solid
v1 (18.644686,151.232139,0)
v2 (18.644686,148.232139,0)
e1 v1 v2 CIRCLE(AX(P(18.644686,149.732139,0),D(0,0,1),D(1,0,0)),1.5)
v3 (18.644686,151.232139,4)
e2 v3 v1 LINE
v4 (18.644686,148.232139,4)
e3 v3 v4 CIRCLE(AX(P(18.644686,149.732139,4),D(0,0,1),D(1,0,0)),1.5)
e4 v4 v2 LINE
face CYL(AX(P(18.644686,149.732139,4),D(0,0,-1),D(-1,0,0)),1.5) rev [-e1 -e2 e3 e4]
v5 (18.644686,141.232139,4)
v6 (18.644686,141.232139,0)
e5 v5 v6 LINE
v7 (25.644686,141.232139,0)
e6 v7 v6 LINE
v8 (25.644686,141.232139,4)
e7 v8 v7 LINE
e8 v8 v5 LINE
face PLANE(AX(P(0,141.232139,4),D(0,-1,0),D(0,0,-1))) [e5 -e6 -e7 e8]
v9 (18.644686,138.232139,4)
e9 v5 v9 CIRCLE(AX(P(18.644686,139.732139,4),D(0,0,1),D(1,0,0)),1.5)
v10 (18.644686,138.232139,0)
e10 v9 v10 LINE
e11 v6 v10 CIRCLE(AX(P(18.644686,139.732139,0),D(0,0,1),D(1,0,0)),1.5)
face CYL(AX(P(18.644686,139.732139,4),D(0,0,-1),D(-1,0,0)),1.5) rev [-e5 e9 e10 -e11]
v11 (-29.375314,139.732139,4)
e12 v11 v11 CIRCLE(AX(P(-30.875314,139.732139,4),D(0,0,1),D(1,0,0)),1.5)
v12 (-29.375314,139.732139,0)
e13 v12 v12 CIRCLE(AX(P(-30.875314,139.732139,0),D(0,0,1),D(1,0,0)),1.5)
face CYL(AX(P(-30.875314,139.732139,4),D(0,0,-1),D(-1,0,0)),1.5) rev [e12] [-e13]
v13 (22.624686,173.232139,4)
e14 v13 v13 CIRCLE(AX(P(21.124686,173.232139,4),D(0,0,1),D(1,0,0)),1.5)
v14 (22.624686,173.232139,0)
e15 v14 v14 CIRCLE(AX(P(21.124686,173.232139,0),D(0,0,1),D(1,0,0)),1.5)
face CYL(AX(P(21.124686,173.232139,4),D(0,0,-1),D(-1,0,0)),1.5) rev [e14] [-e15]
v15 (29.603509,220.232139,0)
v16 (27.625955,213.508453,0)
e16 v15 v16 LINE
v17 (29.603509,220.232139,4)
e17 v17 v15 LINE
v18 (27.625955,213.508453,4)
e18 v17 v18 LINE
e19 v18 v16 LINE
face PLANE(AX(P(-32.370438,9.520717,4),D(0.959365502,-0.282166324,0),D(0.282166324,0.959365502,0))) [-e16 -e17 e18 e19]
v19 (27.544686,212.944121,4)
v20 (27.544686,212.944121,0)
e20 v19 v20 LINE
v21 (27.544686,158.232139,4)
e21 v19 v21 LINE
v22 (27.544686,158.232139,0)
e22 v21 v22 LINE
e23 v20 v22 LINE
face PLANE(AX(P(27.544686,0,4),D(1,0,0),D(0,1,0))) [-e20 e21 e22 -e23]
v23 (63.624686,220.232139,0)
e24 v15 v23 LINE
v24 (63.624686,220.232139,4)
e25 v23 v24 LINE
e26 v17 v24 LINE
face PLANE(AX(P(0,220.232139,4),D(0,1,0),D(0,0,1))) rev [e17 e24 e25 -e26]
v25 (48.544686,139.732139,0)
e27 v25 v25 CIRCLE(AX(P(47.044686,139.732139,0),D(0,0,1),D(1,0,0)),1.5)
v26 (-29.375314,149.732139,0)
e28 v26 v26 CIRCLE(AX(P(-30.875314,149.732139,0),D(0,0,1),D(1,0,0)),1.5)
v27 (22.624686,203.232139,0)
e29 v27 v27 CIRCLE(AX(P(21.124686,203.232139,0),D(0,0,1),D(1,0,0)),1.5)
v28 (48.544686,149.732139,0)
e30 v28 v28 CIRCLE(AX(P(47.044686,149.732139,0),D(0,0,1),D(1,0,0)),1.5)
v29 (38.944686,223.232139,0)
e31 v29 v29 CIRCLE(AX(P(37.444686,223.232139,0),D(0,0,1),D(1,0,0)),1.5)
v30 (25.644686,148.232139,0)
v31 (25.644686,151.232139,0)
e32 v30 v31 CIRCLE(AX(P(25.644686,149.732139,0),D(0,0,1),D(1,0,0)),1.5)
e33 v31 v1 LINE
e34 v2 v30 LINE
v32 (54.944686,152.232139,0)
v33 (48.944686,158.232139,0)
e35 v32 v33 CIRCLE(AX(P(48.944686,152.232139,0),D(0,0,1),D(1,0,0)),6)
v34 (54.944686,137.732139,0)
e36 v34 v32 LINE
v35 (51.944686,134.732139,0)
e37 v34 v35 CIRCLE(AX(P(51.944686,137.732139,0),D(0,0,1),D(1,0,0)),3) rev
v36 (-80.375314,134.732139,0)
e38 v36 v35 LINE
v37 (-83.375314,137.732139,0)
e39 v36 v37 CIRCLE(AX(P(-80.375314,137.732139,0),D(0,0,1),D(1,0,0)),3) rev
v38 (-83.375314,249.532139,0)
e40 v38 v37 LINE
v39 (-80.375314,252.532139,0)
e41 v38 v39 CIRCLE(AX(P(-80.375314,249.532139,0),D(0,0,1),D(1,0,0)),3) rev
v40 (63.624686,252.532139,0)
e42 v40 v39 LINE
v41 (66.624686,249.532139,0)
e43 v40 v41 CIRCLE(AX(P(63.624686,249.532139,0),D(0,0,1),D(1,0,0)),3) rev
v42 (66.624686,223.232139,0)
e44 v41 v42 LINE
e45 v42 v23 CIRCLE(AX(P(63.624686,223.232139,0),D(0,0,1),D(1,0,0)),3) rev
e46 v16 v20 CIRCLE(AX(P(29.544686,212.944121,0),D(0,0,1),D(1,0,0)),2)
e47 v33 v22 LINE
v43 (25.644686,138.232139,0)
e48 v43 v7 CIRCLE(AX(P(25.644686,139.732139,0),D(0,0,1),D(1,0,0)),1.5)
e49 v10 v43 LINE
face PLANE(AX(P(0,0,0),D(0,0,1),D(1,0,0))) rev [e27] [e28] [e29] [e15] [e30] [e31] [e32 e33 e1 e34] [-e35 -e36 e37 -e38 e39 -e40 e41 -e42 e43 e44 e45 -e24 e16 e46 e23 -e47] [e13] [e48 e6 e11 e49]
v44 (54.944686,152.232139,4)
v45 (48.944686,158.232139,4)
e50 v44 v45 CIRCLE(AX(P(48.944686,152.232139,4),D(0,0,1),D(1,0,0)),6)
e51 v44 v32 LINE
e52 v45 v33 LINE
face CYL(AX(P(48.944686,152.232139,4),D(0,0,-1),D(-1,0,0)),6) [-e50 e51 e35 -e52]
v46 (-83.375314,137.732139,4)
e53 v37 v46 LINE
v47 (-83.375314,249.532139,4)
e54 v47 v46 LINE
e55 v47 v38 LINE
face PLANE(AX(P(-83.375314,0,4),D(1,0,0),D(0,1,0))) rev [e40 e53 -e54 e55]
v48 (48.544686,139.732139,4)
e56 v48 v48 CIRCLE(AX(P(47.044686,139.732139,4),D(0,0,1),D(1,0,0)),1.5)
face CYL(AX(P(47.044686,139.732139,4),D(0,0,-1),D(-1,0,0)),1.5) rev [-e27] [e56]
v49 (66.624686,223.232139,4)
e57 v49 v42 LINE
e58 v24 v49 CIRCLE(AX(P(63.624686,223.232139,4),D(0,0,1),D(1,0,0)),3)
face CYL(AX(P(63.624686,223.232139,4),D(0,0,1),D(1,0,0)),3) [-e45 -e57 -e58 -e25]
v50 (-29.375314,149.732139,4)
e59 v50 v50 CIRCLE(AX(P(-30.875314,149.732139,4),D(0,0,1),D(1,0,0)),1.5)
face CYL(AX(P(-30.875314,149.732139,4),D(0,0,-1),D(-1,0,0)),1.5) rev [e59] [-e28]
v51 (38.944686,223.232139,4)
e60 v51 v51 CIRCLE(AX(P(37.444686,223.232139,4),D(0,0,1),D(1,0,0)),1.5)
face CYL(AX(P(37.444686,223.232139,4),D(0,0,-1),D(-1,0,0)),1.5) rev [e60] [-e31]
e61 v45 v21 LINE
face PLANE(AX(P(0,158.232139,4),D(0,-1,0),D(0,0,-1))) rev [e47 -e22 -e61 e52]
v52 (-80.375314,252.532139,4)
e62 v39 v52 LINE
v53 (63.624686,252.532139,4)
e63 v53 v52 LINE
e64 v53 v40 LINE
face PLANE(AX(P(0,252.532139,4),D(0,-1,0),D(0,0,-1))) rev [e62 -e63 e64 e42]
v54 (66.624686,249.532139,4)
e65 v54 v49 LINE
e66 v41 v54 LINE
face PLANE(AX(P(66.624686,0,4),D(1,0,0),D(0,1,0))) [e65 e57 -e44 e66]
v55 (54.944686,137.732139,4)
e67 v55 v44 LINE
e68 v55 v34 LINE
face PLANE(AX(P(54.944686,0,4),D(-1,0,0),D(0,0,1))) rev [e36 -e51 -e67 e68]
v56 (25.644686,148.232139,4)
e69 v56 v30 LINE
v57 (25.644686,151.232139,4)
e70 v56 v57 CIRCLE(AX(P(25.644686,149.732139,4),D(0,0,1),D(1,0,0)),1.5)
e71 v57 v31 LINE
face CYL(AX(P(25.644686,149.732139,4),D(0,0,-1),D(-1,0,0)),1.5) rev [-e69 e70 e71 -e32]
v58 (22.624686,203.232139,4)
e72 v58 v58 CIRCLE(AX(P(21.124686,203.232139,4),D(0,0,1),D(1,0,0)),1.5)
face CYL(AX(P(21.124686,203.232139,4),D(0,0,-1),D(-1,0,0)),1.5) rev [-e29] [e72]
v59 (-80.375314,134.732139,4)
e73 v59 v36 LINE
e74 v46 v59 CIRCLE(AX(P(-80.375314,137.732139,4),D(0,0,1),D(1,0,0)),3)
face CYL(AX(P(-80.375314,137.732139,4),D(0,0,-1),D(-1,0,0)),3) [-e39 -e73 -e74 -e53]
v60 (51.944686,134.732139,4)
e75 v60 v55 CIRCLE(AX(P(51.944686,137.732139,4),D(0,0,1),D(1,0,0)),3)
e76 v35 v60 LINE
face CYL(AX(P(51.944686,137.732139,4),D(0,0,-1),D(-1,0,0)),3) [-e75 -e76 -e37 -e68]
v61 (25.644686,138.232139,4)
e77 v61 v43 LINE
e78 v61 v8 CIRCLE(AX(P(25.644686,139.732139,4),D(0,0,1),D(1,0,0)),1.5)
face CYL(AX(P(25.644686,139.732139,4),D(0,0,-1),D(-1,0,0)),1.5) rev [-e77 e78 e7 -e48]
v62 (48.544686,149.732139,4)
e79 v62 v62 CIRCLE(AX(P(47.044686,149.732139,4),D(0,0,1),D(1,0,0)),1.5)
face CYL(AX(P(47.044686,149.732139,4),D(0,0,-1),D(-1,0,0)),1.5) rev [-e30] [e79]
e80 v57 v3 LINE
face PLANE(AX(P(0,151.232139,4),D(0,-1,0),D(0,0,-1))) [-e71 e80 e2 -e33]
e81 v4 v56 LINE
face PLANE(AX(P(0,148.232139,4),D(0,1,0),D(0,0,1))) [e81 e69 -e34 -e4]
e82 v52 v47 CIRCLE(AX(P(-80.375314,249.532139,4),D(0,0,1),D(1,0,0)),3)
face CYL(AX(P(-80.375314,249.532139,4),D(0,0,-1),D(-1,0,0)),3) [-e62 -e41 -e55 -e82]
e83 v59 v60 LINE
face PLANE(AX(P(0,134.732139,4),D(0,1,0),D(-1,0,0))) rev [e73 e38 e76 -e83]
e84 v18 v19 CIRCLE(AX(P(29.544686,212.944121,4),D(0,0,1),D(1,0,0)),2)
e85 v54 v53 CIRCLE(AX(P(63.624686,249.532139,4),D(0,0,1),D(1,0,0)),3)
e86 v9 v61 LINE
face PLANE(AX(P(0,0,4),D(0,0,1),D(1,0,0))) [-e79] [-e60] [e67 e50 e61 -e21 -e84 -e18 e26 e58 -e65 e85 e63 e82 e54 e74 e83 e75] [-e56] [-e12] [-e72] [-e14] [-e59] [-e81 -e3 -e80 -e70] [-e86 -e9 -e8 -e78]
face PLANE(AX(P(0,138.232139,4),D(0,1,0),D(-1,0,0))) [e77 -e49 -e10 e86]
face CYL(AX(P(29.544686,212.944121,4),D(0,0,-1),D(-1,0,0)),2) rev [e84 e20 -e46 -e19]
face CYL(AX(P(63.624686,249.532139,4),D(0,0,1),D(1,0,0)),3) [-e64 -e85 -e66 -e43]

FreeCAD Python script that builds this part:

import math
import FreeCAD as App
import Part
import Sketcher

V = App.Vector


def edges_at(feature, points):
    """Names of the edges that pass closest to the given points."""
    edges = feature.Shape.Edges
    near = lambda p: min(range(len(edges)), key=lambda i: edges[i].distToShape(Part.Vertex(*p))[0])
    return sorted({f"Edge{near(p) + 1}" for p in points})

doc = App.newDocument("Part")
body = doc.addObject("PartDesign::Body", "Body")

# Sketch on XY plane
sketch1 = body.newObject("Sketcher::SketchObject", "Sketch")
sketch1.AttachmentSupport = (doc.getObject("XY_Plane"), [""])
sketch1.MapMode = "FlatFace"
sketch1.addGeometry([
    Part.LineSegment(V(66.6, 252.5, 0), V(-83.4, 252.5, 0)),  # 0
    Part.LineSegment(V(-83.4, 252.5, 0), V(-83.4, 134.7, 0)),  # 1
    Part.LineSegment(V(-83.4, 134.7, 0), V(54.9, 134.7, 0)),  # 2
    Part.LineSegment(V(54.9, 134.7, 0), V(54.9, 152.2, 0)),  # 3
    Part.ArcOfCircle(Part.Circle(V(48.9, 152.2, 0), V(0, 0, 1), 6), math.radians(0), math.radians(90)),  # 4
    Part.LineSegment(V(48.9, 158.2, 0), V(27.5, 158.2, 0)),  # 5
    Part.LineSegment(V(27.5, 158.2, 0), V(27.5, 212.9, 0)),  # 6
    Part.ArcOfCircle(Part.Circle(V(29.5, 212.9, 0), V(0, 0, 1), 2), math.radians(163.61), math.radians(180)),  # 7
    Part.LineSegment(V(27.6, 213.5, 0), V(29.6, 220.2, 0)),  # 8
    Part.LineSegment(V(29.6, 220.2, 0), V(66.6, 220.2, 0)),  # 9
    Part.LineSegment(V(66.6, 220.2, 0), V(66.6, 252.5, 0)),  # 10
    Part.Circle(V(-30.9, 139.7, 0), V(0, 0, 1), 1.5),  # 11
    Part.Circle(V(-30.9, 149.7, 0), V(0, 0, 1), 1.5),  # 12
    Part.ArcOfCircle(Part.Circle(V(25.6, 139.7, 0), V(0, 0, 1), 1.5), math.radians(-90), math.radians(90)),  # 13
    Part.LineSegment(V(25.6, 138.2, 0), V(18.6, 138.2, 0)),  # 14
    Part.ArcOfCircle(Part.Circle(V(18.6, 139.7, 0), V(0, 0, 1), 1.5), math.radians(90), math.radians(270)),  # 15
    Part.LineSegment(V(18.6, 141.2, 0), V(25.6, 141.2, 0)),  # 16
    Part.ArcOfCircle(Part.Circle(V(18.6, 149.7, 0), V(0, 0, 1), 1.5), math.radians(90), math.radians(270)),  # 17
    Part.LineSegment(V(18.6, 151.2, 0), V(25.6, 151.2, 0)),  # 18
    Part.ArcOfCircle(Part.Circle(V(25.6, 149.7, 0), V(0, 0, 1), 1.5), math.radians(-90), math.radians(90)),  # 19
    Part.LineSegment(V(25.6, 148.2, 0), V(18.6, 148.2, 0)),  # 20
    Part.Circle(V(47, 139.7, 0), V(0, 0, 1), 1.5),  # 21
    Part.Circle(V(47, 149.7, 0), V(0, 0, 1), 1.5),  # 22
    Part.Circle(V(21.1, 173.2, 0), V(0, 0, 1), 1.5),  # 23
    Part.Circle(V(21.1, 203.2, 0), V(0, 0, 1), 1.5),  # 24
    Part.Circle(V(37.4, 223.2, 0), V(0, 0, 1), 1.5),  # 25
], False)
sketch1.addConstraint([
    Sketcher.Constraint("Coincident", 0, 2, 1, 1),
    Sketcher.Constraint("Coincident", 1, 2, 2, 1),
    Sketcher.Constraint("Coincident", 2, 2, 3, 1),
    Sketcher.Constraint("Tangent", 3, 2, 4, 1),
    Sketcher.Constraint("Tangent", 4, 2, 5, 1),
    Sketcher.Constraint("Coincident", 5, 2, 6, 1),
    Sketcher.Constraint("Tangent", 6, 2, 7, 2),
    Sketcher.Constraint("Tangent", 7, 1, 8, 1),
    Sketcher.Constraint("Coincident", 8, 2, 9, 1),
    Sketcher.Constraint("Coincident", 9, 2, 10, 1),
    Sketcher.Constraint("Coincident", 10, 2, 0, 1),
    Sketcher.Constraint("Tangent", 13, 1, 14, 1),
    Sketcher.Constraint("Tangent", 14, 2, 15, 2),
    Sketcher.Constraint("Tangent", 15, 1, 16, 1),
    Sketcher.Constraint("Tangent", 16, 2, 13, 2),
    Sketcher.Constraint("Tangent", 17, 1, 18, 1),
    Sketcher.Constraint("Tangent", 18, 2, 19, 2),
    Sketcher.Constraint("Tangent", 19, 1, 20, 1),
    Sketcher.Constraint("Tangent", 20, 2, 17, 2),
    Sketcher.Constraint("Horizontal", 0),
    Sketcher.Constraint("Vertical", 1),
    Sketcher.Constraint("Horizontal", 2),
    Sketcher.Constraint("Vertical", 3),
    Sketcher.Constraint("Horizontal", 5),
    Sketcher.Constraint("Vertical", 6),
    Sketcher.Constraint("Horizontal", 9),
    Sketcher.Constraint("Vertical", 10),
    Sketcher.Constraint("Horizontal", 14),
    Sketcher.Constraint("Horizontal", 16),
    Sketcher.Constraint("Horizontal", 18),
    Sketcher.Constraint("Horizontal", 20),
    Sketcher.Constraint("Equal", 11, 12),
    Sketcher.Constraint("Equal", 12, 13),
    Sketcher.Constraint("Equal", 15, 17),
    Sketcher.Constraint("Equal", 19, 21),
    Sketcher.Constraint("Equal", 21, 22),
    Sketcher.Constraint("Equal", 22, 23),
    Sketcher.Constraint("Equal", 23, 24),
    Sketcher.Constraint("Equal", 24, 25),
    Sketcher.Constraint("Horizontal", 11, 3, 13, 3),
    Sketcher.Constraint("Horizontal", 12, 3, 17, 3),
    Sketcher.Constraint("Horizontal", 15, 3, 21, 3),
    Sketcher.Constraint("Horizontal", 19, 3, 22, 3),
    Sketcher.Constraint("Vertical", 11, 3, 12, 3),
    Sketcher.Constraint("Vertical", 15, 3, 17, 3),
    Sketcher.Constraint("Vertical", 13, 3, 19, 3),
    Sketcher.Constraint("Vertical", 21, 3, 22, 3),
    Sketcher.Constraint("Vertical", 23, 3, 24, 3),
    Sketcher.Constraint("Diameter", 11, 3.0),
    Sketcher.Constraint("Radius", 4, 6.0),
    Sketcher.Constraint("Radius", 7, 2.0),
    Sketcher.Constraint("DistanceX", 0, 2, 0, 1, 150.0),
    Sketcher.Constraint("DistanceX", 14, 2, 14, 1, 7.0),
    Sketcher.Constraint("DistanceX", 5, 2, 5, 1, 21.4),
    Sketcher.Constraint("DistanceY", 1, 2, 1, 1, 117.8),
    Sketcher.Constraint("DistanceY", 3, 1, 3, 2, 17.5),
    Sketcher.Constraint("DistanceY", 10, 1, 10, 2, 32.3),
    Sketcher.Constraint("DistanceY", 11, 3, 12, 3, 10.0),
    Sketcher.Constraint("DistanceY", 4, 3, 23, 3, 21.0),
    Sketcher.Constraint("DistanceY", 23, 3, 24, 3, 30.0),
    Sketcher.Constraint("DistanceY", 24, 3, 25, 3, 20.0),
    Sketcher.Constraint("DistanceY", 1, 2, 11, 3, 5.0),
    Sketcher.Constraint("DistanceX", 2, 1, 2, 2, 138.32),
    Sketcher.Constraint("DistanceX", 13, 3, 4, 3, 23.3),
    Sketcher.Constraint("DistanceX", 21, 3, 4, 3, 1.9),
    Sketcher.Constraint("DistanceX", 7, 3, 25, 3, 7.9),
    Sketcher.Constraint("DistanceX", 0, 2, 12, 3, 52.5),
    Sketcher.Constraint("DistanceX", 0, 2, 24, 3, 104.5),
    Sketcher.Constraint("DistanceY", 6, 1, 6, 2, 54.711982),
    Sketcher.Constraint("Distance", 8, 7.008471),
    Sketcher.Constraint("DistanceY", -1, 1, 4, 3, 152.232139),
    Sketcher.Constraint("DistanceX", -1, 1, 8, 2, 29.603509),
])
pad1 = body.newObject("PartDesign::Pad", "Pad")
pad1.Profile = sketch1
pad1.Length = 4
doc.recompute()

fillet = body.newObject("PartDesign::Fillet", "Fillet")
fillet.Base = (pad1, edges_at(pad1, [
    (-83.375, 134.732, 2),
    (-83.375, 252.532, 2),
    (66.625, 252.532, 2),
    (66.625, 220.232, 2),
    (54.945, 134.732, 2),
]))
fillet.Radius = 3

doc.recompute()
